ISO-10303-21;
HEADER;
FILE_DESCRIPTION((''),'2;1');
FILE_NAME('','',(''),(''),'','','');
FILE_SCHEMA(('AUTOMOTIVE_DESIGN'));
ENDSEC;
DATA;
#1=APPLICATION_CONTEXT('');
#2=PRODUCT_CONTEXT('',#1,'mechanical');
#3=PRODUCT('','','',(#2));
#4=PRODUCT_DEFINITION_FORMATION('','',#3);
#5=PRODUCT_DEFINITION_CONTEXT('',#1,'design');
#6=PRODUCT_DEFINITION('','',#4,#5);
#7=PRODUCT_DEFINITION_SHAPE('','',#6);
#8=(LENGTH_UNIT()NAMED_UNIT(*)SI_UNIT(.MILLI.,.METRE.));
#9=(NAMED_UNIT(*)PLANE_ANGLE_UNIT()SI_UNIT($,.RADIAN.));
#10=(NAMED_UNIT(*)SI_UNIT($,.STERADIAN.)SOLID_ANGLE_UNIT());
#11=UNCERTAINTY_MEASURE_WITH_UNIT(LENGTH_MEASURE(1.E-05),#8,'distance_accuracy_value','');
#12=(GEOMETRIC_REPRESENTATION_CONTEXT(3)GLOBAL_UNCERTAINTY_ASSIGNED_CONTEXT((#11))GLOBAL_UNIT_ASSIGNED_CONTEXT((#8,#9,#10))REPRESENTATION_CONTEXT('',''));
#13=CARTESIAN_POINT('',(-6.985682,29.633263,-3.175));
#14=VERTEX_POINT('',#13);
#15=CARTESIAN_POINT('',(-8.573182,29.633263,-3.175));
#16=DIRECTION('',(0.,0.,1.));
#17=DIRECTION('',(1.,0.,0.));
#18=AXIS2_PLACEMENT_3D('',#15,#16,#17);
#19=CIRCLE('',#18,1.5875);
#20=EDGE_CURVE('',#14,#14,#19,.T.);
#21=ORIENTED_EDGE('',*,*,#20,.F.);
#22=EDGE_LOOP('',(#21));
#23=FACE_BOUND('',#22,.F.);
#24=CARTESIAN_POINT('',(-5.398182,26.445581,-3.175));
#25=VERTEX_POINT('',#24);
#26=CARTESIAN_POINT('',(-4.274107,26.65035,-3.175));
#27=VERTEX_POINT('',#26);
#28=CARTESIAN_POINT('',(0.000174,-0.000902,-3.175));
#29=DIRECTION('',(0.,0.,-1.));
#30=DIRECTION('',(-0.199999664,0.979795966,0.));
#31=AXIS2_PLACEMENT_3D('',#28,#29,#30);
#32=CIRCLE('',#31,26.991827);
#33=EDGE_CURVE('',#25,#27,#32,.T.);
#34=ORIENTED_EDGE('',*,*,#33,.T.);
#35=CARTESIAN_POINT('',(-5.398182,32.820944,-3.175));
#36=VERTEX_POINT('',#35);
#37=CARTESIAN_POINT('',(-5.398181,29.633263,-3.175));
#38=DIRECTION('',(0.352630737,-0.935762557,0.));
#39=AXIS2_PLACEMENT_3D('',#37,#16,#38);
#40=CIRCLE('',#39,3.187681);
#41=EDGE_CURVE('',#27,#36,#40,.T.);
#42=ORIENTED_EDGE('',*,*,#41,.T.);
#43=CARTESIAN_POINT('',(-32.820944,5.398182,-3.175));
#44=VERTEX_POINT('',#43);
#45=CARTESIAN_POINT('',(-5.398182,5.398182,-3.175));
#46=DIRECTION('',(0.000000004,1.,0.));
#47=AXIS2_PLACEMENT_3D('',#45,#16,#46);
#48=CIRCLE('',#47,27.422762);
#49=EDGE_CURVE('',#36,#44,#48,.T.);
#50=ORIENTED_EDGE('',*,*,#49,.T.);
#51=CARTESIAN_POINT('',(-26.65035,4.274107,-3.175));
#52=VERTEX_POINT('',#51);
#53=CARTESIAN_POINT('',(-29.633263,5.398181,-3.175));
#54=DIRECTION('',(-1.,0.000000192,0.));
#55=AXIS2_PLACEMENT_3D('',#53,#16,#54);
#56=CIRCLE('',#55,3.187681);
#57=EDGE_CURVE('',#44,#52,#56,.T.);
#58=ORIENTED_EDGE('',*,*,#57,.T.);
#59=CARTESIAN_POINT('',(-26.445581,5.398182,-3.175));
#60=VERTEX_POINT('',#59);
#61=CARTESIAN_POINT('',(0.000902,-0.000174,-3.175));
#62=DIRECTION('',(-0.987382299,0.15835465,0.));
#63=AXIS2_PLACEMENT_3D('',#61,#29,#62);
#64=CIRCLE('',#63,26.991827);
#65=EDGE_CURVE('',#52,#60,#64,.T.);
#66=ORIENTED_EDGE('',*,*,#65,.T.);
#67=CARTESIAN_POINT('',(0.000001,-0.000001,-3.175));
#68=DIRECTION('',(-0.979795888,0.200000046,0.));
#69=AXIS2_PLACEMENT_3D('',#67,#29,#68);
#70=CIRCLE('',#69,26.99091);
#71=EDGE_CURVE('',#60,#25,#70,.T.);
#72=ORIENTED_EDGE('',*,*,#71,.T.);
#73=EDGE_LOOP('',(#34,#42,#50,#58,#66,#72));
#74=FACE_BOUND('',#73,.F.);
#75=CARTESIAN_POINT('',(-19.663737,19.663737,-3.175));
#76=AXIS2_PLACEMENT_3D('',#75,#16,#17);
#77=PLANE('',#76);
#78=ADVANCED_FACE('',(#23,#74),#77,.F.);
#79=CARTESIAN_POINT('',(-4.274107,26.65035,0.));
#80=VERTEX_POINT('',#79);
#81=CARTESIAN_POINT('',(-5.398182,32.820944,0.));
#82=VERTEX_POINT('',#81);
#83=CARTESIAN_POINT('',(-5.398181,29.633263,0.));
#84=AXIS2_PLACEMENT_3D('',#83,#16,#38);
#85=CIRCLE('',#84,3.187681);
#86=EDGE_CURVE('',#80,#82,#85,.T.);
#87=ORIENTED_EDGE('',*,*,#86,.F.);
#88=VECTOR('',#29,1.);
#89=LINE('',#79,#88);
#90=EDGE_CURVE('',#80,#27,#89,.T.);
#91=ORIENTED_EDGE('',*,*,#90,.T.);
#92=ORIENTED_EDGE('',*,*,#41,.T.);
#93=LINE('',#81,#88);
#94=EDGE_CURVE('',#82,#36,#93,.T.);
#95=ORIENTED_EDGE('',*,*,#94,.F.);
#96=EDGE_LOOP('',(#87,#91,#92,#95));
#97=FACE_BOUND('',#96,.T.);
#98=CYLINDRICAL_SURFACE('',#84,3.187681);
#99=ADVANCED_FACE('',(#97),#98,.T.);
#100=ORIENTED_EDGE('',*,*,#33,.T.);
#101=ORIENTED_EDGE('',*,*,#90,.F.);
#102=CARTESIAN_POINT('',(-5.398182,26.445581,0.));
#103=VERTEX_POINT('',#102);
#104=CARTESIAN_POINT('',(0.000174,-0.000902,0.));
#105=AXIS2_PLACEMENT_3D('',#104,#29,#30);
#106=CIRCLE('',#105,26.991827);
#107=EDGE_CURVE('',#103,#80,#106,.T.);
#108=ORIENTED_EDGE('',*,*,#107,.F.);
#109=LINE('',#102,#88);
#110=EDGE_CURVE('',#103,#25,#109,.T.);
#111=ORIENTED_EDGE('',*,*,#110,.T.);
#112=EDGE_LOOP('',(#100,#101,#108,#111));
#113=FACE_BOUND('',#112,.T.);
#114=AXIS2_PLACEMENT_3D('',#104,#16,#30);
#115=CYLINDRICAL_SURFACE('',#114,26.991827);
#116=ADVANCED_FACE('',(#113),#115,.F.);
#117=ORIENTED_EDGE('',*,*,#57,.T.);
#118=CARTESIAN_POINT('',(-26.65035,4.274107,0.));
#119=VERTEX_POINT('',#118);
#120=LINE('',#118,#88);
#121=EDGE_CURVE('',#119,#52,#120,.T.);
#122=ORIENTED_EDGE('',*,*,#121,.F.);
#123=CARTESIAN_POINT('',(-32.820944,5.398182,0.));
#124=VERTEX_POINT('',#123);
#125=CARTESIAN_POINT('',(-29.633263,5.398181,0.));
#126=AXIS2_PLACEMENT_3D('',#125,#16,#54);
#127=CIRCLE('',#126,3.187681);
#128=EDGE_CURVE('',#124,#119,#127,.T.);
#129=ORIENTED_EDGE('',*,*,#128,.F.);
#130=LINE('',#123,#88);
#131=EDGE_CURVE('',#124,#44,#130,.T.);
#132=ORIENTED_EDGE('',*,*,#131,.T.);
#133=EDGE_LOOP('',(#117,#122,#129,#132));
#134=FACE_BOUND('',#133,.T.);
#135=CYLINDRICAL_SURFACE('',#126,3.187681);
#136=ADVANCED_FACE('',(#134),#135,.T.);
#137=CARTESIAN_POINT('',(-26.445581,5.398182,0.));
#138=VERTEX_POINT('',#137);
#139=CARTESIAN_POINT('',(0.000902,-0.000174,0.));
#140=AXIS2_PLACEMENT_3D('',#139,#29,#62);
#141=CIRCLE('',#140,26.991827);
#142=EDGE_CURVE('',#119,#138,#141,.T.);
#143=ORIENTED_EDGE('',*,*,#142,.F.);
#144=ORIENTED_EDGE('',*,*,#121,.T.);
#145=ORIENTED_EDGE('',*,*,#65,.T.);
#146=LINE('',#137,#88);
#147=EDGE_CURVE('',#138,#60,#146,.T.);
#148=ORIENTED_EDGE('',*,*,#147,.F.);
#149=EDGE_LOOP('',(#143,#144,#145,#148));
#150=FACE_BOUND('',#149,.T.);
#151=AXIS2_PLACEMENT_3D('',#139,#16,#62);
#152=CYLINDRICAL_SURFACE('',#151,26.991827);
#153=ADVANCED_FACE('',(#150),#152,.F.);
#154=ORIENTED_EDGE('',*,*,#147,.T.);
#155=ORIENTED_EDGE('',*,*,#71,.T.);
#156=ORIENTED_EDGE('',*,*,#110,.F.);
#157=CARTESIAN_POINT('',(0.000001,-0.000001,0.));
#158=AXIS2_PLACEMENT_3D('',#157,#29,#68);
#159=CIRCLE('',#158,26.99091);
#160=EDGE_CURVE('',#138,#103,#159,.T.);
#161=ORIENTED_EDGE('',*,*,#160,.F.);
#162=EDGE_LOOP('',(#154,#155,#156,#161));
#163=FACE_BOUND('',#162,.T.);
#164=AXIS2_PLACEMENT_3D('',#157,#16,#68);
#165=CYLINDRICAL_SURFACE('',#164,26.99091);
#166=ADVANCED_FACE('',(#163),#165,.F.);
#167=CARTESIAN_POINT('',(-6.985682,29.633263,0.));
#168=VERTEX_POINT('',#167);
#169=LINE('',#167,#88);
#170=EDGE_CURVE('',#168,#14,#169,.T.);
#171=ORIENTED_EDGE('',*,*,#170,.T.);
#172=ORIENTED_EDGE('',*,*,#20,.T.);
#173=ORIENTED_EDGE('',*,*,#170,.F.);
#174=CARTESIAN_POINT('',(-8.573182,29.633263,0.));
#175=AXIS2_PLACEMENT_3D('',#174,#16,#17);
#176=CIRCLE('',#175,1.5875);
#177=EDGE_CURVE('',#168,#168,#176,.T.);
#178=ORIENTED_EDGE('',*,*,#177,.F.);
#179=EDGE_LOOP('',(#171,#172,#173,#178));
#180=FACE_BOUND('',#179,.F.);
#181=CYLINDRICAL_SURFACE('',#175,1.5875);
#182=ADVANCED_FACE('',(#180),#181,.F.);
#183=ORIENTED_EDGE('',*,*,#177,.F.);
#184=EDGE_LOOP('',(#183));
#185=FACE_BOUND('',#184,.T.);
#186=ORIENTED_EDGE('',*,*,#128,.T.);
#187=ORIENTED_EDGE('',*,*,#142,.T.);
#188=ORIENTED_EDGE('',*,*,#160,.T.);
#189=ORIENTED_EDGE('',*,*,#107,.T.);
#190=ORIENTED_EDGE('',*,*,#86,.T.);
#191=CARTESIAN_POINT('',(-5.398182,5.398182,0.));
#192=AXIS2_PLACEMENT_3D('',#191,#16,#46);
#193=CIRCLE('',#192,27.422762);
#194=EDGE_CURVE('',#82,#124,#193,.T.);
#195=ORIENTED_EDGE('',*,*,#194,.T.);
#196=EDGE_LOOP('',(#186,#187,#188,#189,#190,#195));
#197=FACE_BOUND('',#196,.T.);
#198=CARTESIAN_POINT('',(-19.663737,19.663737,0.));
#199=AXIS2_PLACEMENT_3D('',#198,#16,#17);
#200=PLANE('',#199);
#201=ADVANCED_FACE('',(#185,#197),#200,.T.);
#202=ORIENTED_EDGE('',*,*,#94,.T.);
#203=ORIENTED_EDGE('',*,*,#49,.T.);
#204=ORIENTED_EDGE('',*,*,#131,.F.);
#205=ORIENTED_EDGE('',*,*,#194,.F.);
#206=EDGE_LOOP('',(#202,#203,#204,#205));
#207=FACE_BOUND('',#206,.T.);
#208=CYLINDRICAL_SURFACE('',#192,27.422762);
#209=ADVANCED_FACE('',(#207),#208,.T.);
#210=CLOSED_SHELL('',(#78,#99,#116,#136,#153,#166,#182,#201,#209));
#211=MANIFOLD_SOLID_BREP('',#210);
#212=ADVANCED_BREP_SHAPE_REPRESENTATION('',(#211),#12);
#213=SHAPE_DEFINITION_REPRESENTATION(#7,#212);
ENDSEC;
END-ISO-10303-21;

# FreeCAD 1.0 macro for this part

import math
import FreeCAD as App
import Part
import Sketcher

V = App.Vector
Q = App.Units.Quantity

doc = App.newDocument("Part")
body = doc.addObject("PartDesign::Body", "Body")

# Sketch on XY plane
sketch1 = doc.addObject("Sketcher::SketchObject", "Sketch")
body.addObject(sketch1)
sketch1.AttachmentSupport = (doc.XY_Plane, [""])
sketch1.MapMode = "FlatFace"
sketch1.addGeometry([
    Part.ArcOfCircle(Part.Circle(V(0.000174, -0.000902, 0), V(0, 0, 1), 26.991827), math.radians(99.111407), math.radians(101.536939)),  # 0
    Part.ArcOfCircle(Part.Circle(V(-5.398181, 29.633263, 0), V(0, 0, 1), 3.187681), math.radians(-69.351693), math.radians(90.000011)),  # 1
    Part.ArcOfCircle(Part.Circle(V(-5.398182, 5.398182, 0), V(0, 0, 1), 27.422762), math.radians(90), math.radians(180)),  # 2
    Part.ArcOfCircle(Part.Circle(V(-29.633263, 5.398181, 0), V(0, 0, 1), 3.187681), math.radians(179.999989), math.radians(339.351693)),  # 3
    Part.ArcOfCircle(Part.Circle(V(0.000902, -0.000174, 0), V(0, 0, 1), 26.991827), math.radians(168.463061), math.radians(170.888593)),  # 4
    Part.ArcOfCircle(Part.Circle(V(0.000001, -0.000001, 0), V(0, 0, 1), 26.99091), math.radians(101.536962), math.radians(168.463038)),  # 5
    Part.Circle(V(-8.573182, 29.633263, 0), V(0, 0, 1), 1.5875),  # 6
], False)
sketch1.addConstraint([
    Sketcher.Constraint("Coincident", 0, 1, 1, 1),
    Sketcher.Constraint("Tangent", 1, 2, 2, 1),
    Sketcher.Constraint("Tangent", 2, 2, 3, 1),
    Sketcher.Constraint("Coincident", 3, 2, 4, 2),
    Sketcher.Constraint("Tangent", 4, 1, 5, 2),
    Sketcher.Constraint("Tangent", 5, 1, 0, 2),
    Sketcher.Constraint("Coincident", 5, 3, -1, 1),
    Sketcher.Constraint("Equal", 1, 3),
    Sketcher.Constraint("Equal", 0, 4),
    Sketcher.Constraint("Horizontal", 2, 3, 3, 3),
    Sketcher.Constraint("Horizontal", 1, 3, 6, 3),
    Sketcher.Constraint("Horizontal", 2, 2, 4, 1),
    Sketcher.Constraint("Vertical", 1, 3, 2, 3),
    Sketcher.Constraint("Vertical", 1, 2, 5, 1),
    Sketcher.Constraint("Diameter", 6, Q("0.125 in")),
    Sketcher.Constraint("Radius", 1, Q("3.187681 mm")),
    Sketcher.Constraint("Radius", 2, Q("27.422762 mm")),
    Sketcher.Constraint("Radius", 5, Q("26.99091 mm")),
    Sketcher.Constraint("DistanceX", 6, 3, 1, 3, Q("0.125 in")),
    Sketcher.Constraint("Radius", 0, Q("26.991827 mm")),
    Sketcher.Constraint("DistanceX", 4, 1, 2, 3, Q("21.047399 mm")),
    Sketcher.Constraint("DistanceY", 2, 3, 5, 1, Q("21.047399 mm")),
])
pad1 = doc.addObject("PartDesign::Pad", "Pad")
body.addObject(pad1)
pad1.Profile = sketch1
pad1.Length = Q("0.125 in")
pad1.Reversed = True

doc.recompute()
